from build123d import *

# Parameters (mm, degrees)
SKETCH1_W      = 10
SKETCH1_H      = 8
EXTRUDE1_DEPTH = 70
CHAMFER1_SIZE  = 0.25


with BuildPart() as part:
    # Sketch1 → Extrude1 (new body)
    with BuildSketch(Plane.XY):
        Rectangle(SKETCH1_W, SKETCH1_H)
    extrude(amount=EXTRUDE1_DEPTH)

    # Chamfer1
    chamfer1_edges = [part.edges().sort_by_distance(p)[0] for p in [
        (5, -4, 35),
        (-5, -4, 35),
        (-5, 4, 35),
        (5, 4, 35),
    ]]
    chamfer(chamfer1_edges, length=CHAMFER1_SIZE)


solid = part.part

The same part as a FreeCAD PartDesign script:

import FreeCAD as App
import Part
import Sketcher
from FreeCAD import Vector


def edges_at(feature, points):
    """Names of the edges that pass closest to the given points."""
    edges = feature.Shape.Edges
    near = lambda p: min(range(len(edges)), key=lambda i: edges[i].distToShape(Part.Vertex(*p))[0])
    return sorted({f"Edge{near(p) + 1}" for p in points})

doc = App.newDocument("Part")
body = doc.addObject("PartDesign::Body", "Body")

sketch1 = doc.addObject("Sketcher::SketchObject", "Sketch")
body.addObject(sketch1)
sketch1.AttachmentSupport = (doc.XY_Plane, [""])
sketch1.MapMode = "FlatFace"
sketch1.addGeometry(Part.LineSegment(Vector(-5, 4, 0), Vector(-5, -4, 0)), False)
sketch1.addGeometry(Part.LineSegment(Vector(-5, -4, 0), Vector(5, -4, 0)), False)
sketch1.addGeometry(Part.LineSegment(Vector(5, -4, 0), Vector(5, 4, 0)), False)
sketch1.addGeometry(Part.LineSegment(Vector(5, 4, 0), Vector(-5, 4, 0)), False)
sketch1.addConstraint(Sketcher.Constraint("Coincident", 0, 2, 1, 1))
sketch1.addConstraint(Sketcher.Constraint("Coincident", 1, 2, 2, 1))
sketch1.addConstraint(Sketcher.Constraint("Coincident", 2, 2, 3, 1))
sketch1.addConstraint(Sketcher.Constraint("Coincident", 3, 2, 0, 1))
sketch1.addConstraint(Sketcher.Constraint("Vertical", 0))
sketch1.addConstraint(Sketcher.Constraint("Horizontal", 1))
sketch1.addConstraint(Sketcher.Constraint("Vertical", 2))
sketch1.addConstraint(Sketcher.Constraint("Horizontal", 3))
sketch1.addConstraint(Sketcher.Constraint("Symmetric", 0, 2, 2, 2, -1, 1))
sketch1.addConstraint(Sketcher.Constraint("DistanceX", 1, 1, 1, 2, 10.0))
sketch1.addConstraint(Sketcher.Constraint("DistanceY", 0, 2, 0, 1, 8.0))
pad1 = doc.addObject("PartDesign::Pad", "Pad")
body.addObject(pad1)
pad1.Profile = sketch1
pad1.Length = 70
doc.recompute()

chamfer = doc.addObject("PartDesign::Chamfer", "Chamfer")
body.addObject(chamfer)
chamfer.Base = (pad1, edges_at(pad1, [
    (5, -4, 35),
    (-5, -4, 35),
    (-5, 4, 35),
    (5, 4, 35),
]))
chamfer.Size = 0.25

doc.recompute()
